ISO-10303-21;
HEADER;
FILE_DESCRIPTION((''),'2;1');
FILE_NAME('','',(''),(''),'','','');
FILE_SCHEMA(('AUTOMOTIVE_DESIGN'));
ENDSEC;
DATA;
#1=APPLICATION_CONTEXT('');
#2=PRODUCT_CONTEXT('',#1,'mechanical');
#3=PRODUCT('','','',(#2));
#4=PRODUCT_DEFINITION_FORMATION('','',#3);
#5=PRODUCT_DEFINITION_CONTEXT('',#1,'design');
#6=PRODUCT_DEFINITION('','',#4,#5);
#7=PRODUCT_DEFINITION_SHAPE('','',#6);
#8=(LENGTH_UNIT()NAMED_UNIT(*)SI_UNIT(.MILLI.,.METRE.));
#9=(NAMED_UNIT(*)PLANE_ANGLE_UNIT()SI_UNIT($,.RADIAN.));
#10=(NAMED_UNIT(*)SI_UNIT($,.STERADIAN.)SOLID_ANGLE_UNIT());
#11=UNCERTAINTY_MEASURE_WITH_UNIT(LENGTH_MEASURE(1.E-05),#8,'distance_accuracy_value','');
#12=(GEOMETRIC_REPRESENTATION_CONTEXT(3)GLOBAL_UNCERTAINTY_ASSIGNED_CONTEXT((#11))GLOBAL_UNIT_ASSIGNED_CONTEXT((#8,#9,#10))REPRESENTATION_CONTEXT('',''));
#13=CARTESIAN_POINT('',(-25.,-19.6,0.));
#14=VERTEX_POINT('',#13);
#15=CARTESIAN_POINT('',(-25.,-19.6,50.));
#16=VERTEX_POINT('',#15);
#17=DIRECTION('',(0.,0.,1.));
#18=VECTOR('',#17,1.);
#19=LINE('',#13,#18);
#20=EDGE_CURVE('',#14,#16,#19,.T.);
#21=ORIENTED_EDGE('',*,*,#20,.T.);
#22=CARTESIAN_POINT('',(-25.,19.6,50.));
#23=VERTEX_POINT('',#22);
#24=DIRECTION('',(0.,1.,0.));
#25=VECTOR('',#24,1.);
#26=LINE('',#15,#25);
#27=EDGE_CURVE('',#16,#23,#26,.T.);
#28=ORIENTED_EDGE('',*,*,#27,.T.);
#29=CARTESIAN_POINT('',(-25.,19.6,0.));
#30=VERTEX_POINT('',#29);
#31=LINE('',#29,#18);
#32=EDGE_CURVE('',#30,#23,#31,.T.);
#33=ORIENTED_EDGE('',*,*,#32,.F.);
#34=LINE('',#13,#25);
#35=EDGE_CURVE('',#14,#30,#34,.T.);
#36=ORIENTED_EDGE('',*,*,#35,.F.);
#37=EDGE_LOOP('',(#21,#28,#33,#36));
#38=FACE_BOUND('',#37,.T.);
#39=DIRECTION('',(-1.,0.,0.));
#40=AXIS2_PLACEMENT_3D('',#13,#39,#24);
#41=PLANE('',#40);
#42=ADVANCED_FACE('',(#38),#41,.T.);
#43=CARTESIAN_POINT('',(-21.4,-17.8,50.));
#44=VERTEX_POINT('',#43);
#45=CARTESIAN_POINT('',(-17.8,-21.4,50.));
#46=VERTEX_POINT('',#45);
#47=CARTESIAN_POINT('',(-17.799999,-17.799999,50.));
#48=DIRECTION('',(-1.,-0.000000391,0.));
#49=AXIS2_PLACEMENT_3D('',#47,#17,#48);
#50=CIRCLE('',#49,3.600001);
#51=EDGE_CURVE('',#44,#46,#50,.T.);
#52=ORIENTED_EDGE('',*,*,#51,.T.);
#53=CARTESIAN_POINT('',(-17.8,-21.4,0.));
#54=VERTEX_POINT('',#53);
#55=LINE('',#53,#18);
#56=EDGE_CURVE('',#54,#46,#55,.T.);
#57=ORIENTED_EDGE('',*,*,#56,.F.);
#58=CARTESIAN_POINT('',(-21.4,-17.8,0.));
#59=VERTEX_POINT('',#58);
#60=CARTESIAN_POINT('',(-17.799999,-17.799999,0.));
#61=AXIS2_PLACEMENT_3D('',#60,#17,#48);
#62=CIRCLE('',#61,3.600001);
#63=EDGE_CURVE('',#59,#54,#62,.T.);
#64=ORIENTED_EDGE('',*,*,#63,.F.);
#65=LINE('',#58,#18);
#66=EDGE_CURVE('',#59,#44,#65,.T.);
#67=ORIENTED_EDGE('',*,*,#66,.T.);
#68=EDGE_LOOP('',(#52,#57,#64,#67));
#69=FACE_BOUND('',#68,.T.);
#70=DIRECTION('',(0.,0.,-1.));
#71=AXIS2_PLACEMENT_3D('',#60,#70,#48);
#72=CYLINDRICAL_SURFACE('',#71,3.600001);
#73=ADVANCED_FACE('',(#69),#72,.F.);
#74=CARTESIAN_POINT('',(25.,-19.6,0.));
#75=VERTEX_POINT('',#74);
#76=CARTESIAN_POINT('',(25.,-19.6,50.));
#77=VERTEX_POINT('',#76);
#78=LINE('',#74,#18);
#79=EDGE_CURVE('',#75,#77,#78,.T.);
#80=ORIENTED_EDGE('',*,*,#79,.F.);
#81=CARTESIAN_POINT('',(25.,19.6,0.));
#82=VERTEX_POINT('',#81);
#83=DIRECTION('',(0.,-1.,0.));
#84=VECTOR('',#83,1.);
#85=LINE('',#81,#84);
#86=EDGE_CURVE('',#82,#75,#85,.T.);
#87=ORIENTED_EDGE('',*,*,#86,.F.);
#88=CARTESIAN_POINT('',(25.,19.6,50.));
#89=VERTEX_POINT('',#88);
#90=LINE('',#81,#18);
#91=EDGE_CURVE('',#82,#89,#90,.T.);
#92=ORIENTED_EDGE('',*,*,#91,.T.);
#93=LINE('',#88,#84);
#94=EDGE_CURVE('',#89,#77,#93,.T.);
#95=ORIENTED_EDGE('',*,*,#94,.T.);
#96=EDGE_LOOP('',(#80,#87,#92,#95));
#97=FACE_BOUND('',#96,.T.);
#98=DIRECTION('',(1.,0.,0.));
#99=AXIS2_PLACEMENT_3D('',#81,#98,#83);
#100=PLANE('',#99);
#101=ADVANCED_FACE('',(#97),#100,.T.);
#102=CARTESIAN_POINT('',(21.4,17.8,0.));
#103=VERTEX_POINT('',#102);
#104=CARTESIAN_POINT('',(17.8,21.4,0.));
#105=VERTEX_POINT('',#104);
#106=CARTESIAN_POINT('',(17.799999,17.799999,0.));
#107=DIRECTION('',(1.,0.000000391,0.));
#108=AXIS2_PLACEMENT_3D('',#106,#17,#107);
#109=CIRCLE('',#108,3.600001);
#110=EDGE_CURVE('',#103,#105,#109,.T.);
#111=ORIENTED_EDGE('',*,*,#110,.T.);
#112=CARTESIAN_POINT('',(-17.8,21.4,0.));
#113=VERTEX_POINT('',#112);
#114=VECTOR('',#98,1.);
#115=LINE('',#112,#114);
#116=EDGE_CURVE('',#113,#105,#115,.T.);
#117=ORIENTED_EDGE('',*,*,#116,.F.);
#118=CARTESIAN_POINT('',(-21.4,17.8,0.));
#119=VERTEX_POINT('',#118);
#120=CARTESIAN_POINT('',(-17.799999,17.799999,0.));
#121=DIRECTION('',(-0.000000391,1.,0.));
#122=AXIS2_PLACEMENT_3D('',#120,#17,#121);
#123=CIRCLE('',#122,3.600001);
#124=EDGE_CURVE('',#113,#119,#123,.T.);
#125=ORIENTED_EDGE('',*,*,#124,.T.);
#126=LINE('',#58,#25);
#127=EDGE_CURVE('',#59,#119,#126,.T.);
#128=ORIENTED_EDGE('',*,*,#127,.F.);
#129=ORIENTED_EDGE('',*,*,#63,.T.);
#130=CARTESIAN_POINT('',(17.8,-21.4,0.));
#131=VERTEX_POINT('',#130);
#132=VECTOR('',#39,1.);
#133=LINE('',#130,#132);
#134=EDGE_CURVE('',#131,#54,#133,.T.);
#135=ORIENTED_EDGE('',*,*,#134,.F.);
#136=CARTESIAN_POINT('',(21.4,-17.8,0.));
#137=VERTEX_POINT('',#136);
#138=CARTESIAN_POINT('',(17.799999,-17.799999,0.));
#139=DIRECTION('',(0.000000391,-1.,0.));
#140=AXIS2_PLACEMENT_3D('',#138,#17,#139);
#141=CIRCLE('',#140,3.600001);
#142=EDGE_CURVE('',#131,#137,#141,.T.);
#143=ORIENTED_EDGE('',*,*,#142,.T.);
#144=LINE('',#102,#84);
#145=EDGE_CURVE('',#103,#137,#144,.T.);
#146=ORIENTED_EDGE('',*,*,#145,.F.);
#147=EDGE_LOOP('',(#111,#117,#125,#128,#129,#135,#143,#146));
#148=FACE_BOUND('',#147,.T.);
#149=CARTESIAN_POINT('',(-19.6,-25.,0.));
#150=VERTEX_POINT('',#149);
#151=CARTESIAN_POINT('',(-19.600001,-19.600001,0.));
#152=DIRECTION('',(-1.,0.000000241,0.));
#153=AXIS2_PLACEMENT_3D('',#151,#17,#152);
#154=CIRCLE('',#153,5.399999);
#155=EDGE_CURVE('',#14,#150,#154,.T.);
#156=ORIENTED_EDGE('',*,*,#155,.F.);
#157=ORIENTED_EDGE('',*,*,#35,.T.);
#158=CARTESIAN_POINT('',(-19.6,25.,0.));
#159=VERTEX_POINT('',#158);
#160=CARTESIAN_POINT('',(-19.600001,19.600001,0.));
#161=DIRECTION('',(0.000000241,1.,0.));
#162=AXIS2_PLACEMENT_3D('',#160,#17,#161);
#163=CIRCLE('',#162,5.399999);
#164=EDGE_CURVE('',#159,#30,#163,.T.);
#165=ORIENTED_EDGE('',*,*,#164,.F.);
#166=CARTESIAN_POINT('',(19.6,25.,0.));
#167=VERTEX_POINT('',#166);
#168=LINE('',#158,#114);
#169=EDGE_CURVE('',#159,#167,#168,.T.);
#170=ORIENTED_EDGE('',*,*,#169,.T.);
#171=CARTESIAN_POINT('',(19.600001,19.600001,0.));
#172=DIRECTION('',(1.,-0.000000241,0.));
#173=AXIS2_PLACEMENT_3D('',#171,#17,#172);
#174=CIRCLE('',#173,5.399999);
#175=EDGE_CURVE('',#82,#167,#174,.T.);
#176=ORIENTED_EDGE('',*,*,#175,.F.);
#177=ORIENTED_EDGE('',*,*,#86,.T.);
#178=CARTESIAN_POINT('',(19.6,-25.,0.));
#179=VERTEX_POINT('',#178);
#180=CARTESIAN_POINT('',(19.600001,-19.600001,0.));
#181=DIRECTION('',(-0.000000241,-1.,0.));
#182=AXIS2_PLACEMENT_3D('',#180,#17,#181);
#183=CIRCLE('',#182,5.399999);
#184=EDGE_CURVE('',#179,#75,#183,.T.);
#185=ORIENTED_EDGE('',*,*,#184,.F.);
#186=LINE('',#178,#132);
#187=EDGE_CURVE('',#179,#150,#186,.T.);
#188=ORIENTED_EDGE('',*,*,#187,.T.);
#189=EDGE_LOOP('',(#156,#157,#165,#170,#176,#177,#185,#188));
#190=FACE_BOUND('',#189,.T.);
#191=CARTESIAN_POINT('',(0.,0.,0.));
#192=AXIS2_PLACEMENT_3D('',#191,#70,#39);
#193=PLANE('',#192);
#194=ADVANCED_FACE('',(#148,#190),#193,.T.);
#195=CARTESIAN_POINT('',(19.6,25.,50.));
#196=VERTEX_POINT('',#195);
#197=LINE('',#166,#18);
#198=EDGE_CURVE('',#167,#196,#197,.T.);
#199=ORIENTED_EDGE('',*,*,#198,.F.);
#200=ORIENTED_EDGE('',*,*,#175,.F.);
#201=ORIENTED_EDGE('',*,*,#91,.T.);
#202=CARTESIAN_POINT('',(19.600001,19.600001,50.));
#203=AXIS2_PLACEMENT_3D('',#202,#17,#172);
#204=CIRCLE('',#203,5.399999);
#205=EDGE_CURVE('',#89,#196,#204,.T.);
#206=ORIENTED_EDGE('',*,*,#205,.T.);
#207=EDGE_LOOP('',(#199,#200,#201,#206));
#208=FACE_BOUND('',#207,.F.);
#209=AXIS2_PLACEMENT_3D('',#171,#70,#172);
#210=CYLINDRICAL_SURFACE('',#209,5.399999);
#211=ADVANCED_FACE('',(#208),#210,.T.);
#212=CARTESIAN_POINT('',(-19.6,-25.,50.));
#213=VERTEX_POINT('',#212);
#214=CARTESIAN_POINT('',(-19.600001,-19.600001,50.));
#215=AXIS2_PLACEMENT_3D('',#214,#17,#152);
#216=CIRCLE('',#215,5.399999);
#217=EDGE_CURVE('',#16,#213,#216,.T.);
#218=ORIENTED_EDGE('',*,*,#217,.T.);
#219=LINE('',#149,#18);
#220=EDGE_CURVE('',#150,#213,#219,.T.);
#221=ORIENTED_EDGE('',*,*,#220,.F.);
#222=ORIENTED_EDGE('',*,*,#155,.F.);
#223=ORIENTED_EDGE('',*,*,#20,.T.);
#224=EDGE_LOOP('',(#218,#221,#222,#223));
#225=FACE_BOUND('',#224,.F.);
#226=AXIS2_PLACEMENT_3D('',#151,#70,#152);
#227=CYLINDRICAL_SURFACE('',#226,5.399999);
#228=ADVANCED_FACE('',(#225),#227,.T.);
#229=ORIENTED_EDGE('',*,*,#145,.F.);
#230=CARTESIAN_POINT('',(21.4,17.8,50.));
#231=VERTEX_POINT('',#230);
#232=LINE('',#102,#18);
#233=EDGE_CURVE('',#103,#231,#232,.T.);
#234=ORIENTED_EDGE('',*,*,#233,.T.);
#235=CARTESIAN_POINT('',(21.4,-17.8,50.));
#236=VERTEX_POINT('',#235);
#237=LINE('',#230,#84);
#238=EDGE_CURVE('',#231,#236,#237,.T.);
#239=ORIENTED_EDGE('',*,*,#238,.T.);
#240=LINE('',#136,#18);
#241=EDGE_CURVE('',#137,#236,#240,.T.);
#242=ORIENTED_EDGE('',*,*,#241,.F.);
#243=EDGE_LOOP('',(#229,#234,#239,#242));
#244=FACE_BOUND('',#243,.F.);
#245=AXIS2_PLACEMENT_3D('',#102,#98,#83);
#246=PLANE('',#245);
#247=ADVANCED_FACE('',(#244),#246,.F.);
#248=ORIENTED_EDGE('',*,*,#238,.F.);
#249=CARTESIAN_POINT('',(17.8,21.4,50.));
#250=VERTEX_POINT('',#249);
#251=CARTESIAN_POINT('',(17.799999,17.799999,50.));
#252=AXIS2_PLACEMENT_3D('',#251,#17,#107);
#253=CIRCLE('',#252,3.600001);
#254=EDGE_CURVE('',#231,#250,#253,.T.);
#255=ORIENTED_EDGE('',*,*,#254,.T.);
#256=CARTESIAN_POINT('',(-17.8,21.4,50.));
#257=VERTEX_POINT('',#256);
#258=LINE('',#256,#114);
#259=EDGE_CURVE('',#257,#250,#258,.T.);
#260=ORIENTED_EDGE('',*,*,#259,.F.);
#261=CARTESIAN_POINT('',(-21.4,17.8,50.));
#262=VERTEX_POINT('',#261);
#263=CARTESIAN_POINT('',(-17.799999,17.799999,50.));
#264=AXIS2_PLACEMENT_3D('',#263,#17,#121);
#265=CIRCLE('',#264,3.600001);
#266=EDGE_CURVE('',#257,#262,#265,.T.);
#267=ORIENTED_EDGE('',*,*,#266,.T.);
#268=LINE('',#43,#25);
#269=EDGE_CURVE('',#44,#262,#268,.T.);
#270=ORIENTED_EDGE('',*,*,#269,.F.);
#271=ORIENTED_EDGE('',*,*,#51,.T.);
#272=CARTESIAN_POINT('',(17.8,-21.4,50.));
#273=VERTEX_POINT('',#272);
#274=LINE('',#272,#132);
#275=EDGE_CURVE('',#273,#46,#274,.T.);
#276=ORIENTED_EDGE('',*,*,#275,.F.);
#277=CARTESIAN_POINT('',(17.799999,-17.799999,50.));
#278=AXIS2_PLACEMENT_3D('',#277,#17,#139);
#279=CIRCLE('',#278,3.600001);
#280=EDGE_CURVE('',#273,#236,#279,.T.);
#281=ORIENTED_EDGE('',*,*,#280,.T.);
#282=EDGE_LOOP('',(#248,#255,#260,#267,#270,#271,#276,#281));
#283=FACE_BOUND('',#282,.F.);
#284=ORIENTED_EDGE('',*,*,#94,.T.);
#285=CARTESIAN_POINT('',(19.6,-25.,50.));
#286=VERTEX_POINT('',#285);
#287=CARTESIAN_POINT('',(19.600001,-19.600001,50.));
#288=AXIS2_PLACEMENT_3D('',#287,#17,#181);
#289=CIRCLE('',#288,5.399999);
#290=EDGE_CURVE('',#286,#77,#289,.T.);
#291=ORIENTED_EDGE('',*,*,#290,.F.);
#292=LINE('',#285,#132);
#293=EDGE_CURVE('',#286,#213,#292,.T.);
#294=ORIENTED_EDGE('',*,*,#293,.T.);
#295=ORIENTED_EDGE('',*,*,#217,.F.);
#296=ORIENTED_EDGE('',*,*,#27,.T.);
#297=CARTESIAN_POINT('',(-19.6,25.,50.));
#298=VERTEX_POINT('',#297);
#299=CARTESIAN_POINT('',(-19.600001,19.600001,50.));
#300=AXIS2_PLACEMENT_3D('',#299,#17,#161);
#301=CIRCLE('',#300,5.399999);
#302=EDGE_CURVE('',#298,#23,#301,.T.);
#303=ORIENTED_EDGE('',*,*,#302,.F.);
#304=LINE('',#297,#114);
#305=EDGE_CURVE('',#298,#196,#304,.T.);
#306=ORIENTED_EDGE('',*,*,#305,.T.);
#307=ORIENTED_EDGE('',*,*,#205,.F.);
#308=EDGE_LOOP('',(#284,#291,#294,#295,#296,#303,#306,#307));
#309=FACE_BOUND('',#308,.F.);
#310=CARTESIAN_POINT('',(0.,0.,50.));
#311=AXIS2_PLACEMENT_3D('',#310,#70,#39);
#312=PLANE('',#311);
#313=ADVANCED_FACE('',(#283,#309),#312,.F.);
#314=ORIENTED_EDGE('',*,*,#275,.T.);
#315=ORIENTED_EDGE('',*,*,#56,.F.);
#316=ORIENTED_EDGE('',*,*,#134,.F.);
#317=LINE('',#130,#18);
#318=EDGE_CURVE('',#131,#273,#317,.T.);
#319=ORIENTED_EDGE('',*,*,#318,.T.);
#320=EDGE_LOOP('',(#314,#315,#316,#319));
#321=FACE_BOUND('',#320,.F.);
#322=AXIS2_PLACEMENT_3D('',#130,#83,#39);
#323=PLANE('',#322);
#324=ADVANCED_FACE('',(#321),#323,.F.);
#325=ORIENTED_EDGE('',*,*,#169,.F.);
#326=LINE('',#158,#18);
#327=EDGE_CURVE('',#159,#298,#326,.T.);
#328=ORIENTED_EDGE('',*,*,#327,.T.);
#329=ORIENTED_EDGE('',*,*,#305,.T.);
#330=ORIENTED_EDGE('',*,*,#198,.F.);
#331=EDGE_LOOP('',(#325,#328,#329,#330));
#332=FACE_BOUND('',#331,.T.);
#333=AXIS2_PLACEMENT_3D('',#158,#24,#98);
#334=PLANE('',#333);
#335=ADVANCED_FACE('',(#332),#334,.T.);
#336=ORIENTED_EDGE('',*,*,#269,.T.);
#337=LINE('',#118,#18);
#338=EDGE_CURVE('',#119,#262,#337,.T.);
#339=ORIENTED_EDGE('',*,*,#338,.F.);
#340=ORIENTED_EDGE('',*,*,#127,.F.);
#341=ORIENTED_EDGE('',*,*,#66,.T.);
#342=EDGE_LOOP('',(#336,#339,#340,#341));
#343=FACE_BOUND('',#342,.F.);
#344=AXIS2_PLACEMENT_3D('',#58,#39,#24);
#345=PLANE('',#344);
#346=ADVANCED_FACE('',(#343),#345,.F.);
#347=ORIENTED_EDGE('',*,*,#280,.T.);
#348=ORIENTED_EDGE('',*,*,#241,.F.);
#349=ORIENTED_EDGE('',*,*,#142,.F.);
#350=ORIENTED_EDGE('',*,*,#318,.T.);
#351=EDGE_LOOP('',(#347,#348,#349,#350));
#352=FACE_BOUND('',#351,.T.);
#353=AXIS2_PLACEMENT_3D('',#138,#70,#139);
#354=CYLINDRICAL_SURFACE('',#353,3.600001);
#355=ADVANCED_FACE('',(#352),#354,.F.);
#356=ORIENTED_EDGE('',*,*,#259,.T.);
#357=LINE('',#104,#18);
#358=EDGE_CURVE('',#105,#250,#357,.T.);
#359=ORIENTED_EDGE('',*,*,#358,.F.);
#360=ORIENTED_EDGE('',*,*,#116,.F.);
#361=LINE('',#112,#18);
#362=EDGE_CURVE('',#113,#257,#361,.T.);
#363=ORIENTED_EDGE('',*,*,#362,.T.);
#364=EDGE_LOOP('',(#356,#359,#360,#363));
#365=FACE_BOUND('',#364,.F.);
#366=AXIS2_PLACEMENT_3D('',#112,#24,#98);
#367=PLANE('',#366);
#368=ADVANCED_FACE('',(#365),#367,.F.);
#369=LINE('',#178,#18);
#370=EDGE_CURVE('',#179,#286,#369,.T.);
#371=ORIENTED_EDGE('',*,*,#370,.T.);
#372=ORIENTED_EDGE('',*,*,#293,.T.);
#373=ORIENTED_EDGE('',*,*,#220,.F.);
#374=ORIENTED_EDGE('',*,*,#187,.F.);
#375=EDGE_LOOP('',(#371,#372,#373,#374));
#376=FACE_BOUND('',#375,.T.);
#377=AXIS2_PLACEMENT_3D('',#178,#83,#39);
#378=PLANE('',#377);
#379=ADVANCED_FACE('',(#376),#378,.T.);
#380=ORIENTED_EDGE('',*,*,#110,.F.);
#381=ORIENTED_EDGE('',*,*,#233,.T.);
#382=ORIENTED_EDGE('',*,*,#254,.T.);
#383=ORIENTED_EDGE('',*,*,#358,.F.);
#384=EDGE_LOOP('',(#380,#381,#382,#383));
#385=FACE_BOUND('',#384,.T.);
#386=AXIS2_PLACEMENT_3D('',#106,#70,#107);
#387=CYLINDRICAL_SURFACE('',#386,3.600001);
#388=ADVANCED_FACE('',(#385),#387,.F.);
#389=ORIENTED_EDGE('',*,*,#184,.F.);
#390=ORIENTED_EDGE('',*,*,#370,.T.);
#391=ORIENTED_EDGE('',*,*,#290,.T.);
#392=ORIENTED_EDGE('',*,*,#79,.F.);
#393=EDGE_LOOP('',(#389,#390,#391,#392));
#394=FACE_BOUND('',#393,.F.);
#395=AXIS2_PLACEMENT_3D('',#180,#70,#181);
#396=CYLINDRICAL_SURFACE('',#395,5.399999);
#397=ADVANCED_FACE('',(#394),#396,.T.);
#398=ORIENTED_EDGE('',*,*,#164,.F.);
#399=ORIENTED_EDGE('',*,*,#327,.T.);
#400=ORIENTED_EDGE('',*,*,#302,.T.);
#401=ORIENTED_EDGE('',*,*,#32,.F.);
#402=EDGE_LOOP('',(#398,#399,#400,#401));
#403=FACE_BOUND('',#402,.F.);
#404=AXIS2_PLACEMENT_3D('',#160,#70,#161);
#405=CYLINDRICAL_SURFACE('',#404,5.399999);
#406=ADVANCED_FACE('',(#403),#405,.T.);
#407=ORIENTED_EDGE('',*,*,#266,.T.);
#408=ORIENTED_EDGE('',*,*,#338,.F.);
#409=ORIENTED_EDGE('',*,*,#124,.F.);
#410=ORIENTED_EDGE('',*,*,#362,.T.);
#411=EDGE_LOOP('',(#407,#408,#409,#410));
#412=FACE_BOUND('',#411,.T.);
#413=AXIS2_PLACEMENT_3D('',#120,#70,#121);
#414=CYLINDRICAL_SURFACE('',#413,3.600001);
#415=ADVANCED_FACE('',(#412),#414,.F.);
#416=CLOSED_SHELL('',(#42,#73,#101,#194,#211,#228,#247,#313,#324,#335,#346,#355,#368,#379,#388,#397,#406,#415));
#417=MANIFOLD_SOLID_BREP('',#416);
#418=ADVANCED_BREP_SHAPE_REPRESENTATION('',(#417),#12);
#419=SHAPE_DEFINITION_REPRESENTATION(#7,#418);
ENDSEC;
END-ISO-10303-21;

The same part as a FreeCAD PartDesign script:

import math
import FreeCAD as App
import Part
import Sketcher

V = App.Vector

doc = App.newDocument("Part")
body = doc.addObject("PartDesign::Body", "Body")

sketch1 = body.newObject("Sketcher::SketchObject", "Sketch")
sketch1.AttachmentSupport = (doc.getObject("XY_Plane"), [""])
sketch1.MapMode = "FlatFace"
sketch1.addGeometry([
    Part.LineSegment(V(19.6, 25, 0), V(-19.6, 25, 0)),
    Part.ArcOfCircle(Part.Circle(V(-19.600001, 19.600001, 0), V(0, 0, 1), 5.399999), math.radians(89.999986), math.radians(180.000014)),
    Part.LineSegment(V(-25, 19.6, 0), V(-25, -19.6, 0)),
    Part.ArcOfCircle(Part.Circle(V(-19.600001, -19.600001, 0), V(0, 0, 1), 5.399999), math.radians(179.999986), math.radians(270.000014)),
    Part.LineSegment(V(-19.6, -25, 0), V(19.6, -25, 0)),
    Part.ArcOfCircle(Part.Circle(V(19.600001, -19.600001, 0), V(0, 0, 1), 5.399999), math.radians(-90.000014), math.radians(0.000014)),
    Part.LineSegment(V(25, -19.6, 0), V(25, 19.6, 0)),
    Part.ArcOfCircle(Part.Circle(V(19.600001, 19.600001, 0), V(0, 0, 1), 5.399999), math.radians(-0.000014), math.radians(90.000014)),
    Part.LineSegment(V(-17.8, 21.4, 0), V(17.8, 21.4, 0)),
    Part.ArcOfCircle(Part.Circle(V(17.799999, 17.799999, 0), V(0, 0, 1), 3.600001), math.radians(0.000022), math.radians(89.999978)),
    Part.LineSegment(V(21.4, 17.8, 0), V(21.4, -17.8, 0)),
    Part.ArcOfCircle(Part.Circle(V(17.799999, -17.799999, 0), V(0, 0, 1), 3.600001), math.radians(-89.999978), math.radians(-0.000022)),
    Part.LineSegment(V(17.8, -21.4, 0), V(-17.8, -21.4, 0)),
    Part.ArcOfCircle(Part.Circle(V(-17.799999, -17.799999, 0), V(0, 0, 1), 3.600001), math.radians(-179.999978), math.radians(-90.000022)),
    Part.LineSegment(V(-21.4, -17.8, 0), V(-21.4, 17.8, 0)),
    Part.ArcOfCircle(Part.Circle(V(-17.799999, 17.799999, 0), V(0, 0, 1), 3.600001), math.radians(90.000022), math.radians(179.999978)),
], False)
sketch1.addConstraint([
    Sketcher.Constraint("Tangent", 0, 2, 1, 1),
    Sketcher.Constraint("Tangent", 1, 2, 2, 1),
    Sketcher.Constraint("Tangent", 2, 2, 3, 1),
    Sketcher.Constraint("Tangent", 3, 2, 4, 1),
    Sketcher.Constraint("Tangent", 4, 2, 5, 1),
    Sketcher.Constraint("Tangent", 5, 2, 6, 1),
    Sketcher.Constraint("Tangent", 6, 2, 7, 1),
    Sketcher.Constraint("Tangent", 7, 2, 0, 1),
    Sketcher.Constraint("Tangent", 8, 2, 9, 2),
    Sketcher.Constraint("Tangent", 9, 1, 10, 1),
    Sketcher.Constraint("Tangent", 10, 2, 11, 2),
    Sketcher.Constraint("Tangent", 11, 1, 12, 1),
    Sketcher.Constraint("Tangent", 12, 2, 13, 2),
    Sketcher.Constraint("Tangent", 13, 1, 14, 1),
    Sketcher.Constraint("Tangent", 14, 2, 15, 2),
    Sketcher.Constraint("Tangent", 15, 1, 8, 1),
    Sketcher.Constraint("Horizontal", 0),
    Sketcher.Constraint("Vertical", 2),
    Sketcher.Constraint("Horizontal", 4),
    Sketcher.Constraint("Vertical", 6),
    Sketcher.Constraint("Horizontal", 8),
    Sketcher.Constraint("Vertical", 10),
    Sketcher.Constraint("Horizontal", 12),
    Sketcher.Constraint("Vertical", 14),
    Sketcher.Constraint("Equal", 1, 3),
    Sketcher.Constraint("Equal", 3, 5),
    Sketcher.Constraint("Equal", 5, 7),
    Sketcher.Constraint("Equal", 9, 11),
    Sketcher.Constraint("Equal", 11, 13),
    Sketcher.Constraint("Equal", 13, 15),
    Sketcher.Constraint("Symmetric", 1, 3, 5, 3, -1, 1),
    Sketcher.Constraint("Symmetric", 9, 3, 13, 3, -1, 1),
    Sketcher.Constraint("Equal", 4, 2),
    Sketcher.Constraint("Equal", 12, 10),
    Sketcher.Constraint("Radius", 1, 5.399999),
    Sketcher.Constraint("Radius", 9, 3.600001),
    Sketcher.Constraint("DistanceX", 0, 2, 0, 1, 39.2),
    Sketcher.Constraint("DistanceX", 8, 1, 8, 2, 35.6),
])
pad1 = body.newObject("PartDesign::Pad", "Pad")
pad1.Profile = sketch1
pad1.Length = 50

doc.recompute()
